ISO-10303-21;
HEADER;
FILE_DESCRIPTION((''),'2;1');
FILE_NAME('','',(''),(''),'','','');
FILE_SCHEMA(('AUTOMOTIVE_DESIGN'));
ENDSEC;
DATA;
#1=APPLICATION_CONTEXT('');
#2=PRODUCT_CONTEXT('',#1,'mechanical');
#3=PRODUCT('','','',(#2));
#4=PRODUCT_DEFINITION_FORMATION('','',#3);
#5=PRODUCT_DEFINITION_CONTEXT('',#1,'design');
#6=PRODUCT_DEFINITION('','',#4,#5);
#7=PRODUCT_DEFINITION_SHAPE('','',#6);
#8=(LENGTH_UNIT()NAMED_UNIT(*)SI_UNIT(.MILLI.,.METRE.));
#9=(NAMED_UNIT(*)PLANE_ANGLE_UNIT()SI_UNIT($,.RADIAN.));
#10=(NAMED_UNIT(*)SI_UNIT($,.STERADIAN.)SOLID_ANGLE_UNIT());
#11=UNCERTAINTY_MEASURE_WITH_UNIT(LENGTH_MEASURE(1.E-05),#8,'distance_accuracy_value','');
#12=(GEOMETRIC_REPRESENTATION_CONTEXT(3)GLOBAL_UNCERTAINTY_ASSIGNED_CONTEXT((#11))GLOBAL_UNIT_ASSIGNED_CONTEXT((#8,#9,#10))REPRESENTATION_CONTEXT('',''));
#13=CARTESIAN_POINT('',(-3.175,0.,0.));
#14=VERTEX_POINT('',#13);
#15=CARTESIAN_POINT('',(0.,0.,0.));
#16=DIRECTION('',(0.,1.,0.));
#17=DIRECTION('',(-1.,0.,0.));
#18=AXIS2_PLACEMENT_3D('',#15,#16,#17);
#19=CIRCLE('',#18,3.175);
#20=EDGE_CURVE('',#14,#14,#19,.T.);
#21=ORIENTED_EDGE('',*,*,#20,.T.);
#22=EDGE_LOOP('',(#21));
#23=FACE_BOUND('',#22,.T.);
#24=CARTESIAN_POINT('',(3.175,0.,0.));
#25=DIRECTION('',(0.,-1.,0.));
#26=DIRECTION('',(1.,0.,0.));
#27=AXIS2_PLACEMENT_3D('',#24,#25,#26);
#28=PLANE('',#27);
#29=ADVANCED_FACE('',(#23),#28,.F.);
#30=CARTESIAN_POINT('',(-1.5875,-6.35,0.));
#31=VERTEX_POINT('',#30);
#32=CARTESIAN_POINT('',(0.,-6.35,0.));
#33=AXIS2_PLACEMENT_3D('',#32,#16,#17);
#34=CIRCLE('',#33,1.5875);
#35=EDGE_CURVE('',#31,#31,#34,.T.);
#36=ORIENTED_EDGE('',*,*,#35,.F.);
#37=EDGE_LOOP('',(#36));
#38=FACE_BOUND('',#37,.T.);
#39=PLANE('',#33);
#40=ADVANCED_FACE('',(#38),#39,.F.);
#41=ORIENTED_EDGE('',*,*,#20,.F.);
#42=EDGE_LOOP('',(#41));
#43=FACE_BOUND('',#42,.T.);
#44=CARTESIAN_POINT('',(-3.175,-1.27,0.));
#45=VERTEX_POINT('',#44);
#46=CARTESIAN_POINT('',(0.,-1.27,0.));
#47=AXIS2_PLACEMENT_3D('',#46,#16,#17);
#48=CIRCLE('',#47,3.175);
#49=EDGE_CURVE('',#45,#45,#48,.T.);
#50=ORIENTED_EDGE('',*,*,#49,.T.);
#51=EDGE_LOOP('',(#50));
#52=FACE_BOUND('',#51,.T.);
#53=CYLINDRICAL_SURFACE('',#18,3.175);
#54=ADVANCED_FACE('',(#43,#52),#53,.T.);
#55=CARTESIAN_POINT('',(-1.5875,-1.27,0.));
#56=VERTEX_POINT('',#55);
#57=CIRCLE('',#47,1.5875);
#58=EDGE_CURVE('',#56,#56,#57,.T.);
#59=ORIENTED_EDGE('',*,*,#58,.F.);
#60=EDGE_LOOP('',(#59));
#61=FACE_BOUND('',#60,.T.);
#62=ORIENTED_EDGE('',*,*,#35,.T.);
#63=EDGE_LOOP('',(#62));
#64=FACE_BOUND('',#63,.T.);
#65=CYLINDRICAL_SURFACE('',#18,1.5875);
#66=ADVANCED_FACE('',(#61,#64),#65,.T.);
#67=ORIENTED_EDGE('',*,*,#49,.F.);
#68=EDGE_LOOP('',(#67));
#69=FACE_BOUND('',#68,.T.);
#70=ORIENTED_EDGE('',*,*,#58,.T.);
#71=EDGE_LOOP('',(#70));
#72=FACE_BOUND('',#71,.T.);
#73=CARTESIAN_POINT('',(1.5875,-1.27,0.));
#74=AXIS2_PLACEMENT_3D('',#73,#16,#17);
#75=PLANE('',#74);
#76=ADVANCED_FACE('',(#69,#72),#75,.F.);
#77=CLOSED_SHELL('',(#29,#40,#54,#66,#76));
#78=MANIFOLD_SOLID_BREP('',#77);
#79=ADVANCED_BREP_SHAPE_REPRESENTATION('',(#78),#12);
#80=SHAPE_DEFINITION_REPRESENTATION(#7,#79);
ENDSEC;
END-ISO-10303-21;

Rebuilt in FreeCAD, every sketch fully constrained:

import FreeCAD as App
import Part
import Sketcher

V = App.Vector
Q = App.Units.Quantity


def add_polygon(sketch, points):
    """Adds a closed chain of lines whose ends are joined by coincident constraints."""
    first, n = sketch.GeometryCount, len(points)
    for a, b in zip(points, points[1:] + points[:1]):
        sketch.addGeometry(Part.LineSegment(App.Vector(*a, 0), App.Vector(*b, 0)), False)
    for i in range(n):
        sketch.addConstraint(Sketcher.Constraint("Coincident", first + i, 2, first + (i + 1) % n, 1))

doc = App.newDocument("Part")
body = doc.addObject("PartDesign::Body", "Body")

# Sketch on XY plane
sketch1 = body.newObject("Sketcher::SketchObject", "Sketch")
sketch1.AttachmentSupport = (doc.getObject("XY_Plane"), [""])
sketch1.MapMode = "FlatFace"
add_polygon(sketch1, [(0, 0), (0, -6.3), (1.6, -6.3), (1.6, -1.3), (3.2, -1.3), (3.2, 0)])  # lines 0-5
sketch1.addConstraint(Sketcher.Constraint("Vertical", 0))
sketch1.addConstraint(Sketcher.Constraint("Horizontal", 1))
sketch1.addConstraint(Sketcher.Constraint("Vertical", 2))
sketch1.addConstraint(Sketcher.Constraint("Horizontal", 3))
sketch1.addConstraint(Sketcher.Constraint("Vertical", 4))
sketch1.addConstraint(Sketcher.Constraint("Horizontal", 5))
sketch1.addConstraint(Sketcher.Constraint("Coincident", 5, 2, -1, 1))
sketch1.addConstraint(Sketcher.Constraint("Equal", 1, 3))
sketch1.addConstraint(Sketcher.Constraint("DistanceY", 2, 1, 2, 2, Q("0.2 in")))
sketch1.addConstraint(Sketcher.Constraint("DistanceY", 0, 2, 0, 1, Q("0.25 in")))
sketch1.addConstraint(Sketcher.Constraint("DistanceX", 1, 1, 1, 2, Q("0.0625 in")))
revolution = body.newObject("PartDesign::Revolution", "Revolution")
revolution.Profile = sketch1
revolution.ReferenceAxis = (sketch1, ["V_Axis"])
revolution.Angle = 360

doc.recompute()
